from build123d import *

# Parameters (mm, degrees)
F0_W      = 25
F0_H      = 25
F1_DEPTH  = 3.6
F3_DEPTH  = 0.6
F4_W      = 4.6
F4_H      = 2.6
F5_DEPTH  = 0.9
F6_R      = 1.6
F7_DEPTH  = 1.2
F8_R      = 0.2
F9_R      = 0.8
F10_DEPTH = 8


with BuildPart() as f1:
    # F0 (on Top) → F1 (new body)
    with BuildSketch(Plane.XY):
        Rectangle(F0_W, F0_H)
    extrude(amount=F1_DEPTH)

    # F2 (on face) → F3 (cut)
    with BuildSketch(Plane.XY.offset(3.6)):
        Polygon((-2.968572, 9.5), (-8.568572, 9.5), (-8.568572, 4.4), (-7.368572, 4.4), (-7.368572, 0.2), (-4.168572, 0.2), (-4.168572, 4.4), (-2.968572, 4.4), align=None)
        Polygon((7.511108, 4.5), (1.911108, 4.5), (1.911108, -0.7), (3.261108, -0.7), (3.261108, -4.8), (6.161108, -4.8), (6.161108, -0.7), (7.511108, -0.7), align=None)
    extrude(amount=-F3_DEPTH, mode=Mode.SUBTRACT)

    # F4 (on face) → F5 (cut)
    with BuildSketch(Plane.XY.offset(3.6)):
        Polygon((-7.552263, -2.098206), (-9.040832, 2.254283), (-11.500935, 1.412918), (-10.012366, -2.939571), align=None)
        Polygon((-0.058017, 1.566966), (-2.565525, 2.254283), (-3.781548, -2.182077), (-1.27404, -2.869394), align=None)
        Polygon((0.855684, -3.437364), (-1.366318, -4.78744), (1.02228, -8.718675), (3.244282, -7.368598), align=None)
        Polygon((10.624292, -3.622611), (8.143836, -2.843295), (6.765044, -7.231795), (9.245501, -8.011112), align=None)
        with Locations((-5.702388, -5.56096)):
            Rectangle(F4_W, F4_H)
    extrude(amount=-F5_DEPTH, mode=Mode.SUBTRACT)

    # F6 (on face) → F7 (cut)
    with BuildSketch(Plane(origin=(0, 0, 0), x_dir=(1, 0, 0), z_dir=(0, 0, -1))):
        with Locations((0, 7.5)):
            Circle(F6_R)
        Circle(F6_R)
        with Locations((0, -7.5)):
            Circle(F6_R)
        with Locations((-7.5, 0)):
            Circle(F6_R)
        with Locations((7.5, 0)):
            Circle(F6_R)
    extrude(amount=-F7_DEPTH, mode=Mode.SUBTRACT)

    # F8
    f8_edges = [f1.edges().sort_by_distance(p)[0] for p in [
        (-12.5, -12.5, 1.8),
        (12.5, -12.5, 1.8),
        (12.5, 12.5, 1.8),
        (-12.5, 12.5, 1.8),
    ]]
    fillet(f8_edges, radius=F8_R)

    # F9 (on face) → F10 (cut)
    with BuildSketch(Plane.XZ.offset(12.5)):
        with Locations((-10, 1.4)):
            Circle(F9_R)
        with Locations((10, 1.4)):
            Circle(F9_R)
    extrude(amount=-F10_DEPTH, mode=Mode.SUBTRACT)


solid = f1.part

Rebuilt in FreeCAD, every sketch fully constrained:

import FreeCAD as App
import Part
import Sketcher
Q = App.Units.Quantity


def edges_at(feature, points):
    """Names of the edges that pass closest to the given points."""
    edges = feature.Shape.Edges
    near = lambda p: min(range(len(edges)), key=lambda i: edges[i].distToShape(Part.Vertex(*p))[0])
    return sorted({f"Edge{near(p) + 1}" for p in points})


def add_polygon(sketch, points):
    """Adds a closed chain of lines whose ends are joined by coincident constraints."""
    first, n = sketch.GeometryCount, len(points)
    for a, b in zip(points, points[1:] + points[:1]):
        sketch.addGeometry(Part.LineSegment(App.Vector(*a, 0), App.Vector(*b, 0)), False)
    for i in range(n):
        sketch.addConstraint(Sketcher.Constraint("Coincident", first + i, 2, first + (i + 1) % n, 1))

doc = App.newDocument("Part")
body = doc.addObject("PartDesign::Body", "Body")

# Sketch on XY plane
sketch1 = doc.addObject("Sketcher::SketchObject", "Sketch")
body.addObject(sketch1)
sketch1.AttachmentSupport = (doc.XY_Plane, [""])
sketch1.MapMode = "FlatFace"
add_polygon(sketch1, [(-12, 12), (-12, -12), (12, -12), (12, 12)])  # lines 0-3
sketch1.addConstraint([
    Sketcher.Constraint("Vertical", 0),
    Sketcher.Constraint("Horizontal", 1),
    Sketcher.Constraint("Vertical", 2),
    Sketcher.Constraint("Horizontal", 3),
    Sketcher.Constraint("Symmetric", 0, 2, 2, 2, -1, 1),
    Sketcher.Constraint("Equal", 3, 0),
    Sketcher.Constraint("DistanceX", 1, 1, 1, 2, Q("25 mm")),
])
pad1 = doc.addObject("PartDesign::Pad", "Pad")
body.addObject(pad1)
pad1.Profile = sketch1
pad1.Length = 3.6

# Sketch on XY plane
sketch2 = doc.addObject("Sketcher::SketchObject", "Sketch001")
body.addObject(sketch2)
sketch2.AttachmentSupport = (doc.XY_Plane, [""])
sketch2.MapMode = "FlatFace"
sketch2.AttachmentOffset = App.Placement(App.Vector(0, 0, 3.6), App.Rotation())
add_polygon(sketch2, [(-3, 9.5), (-8.6, 9.5), (-8.6, 4.4), (-7.4, 4.4), (-7.4, 0.2), (-4.2, 0.2), (-4.2, 4.4), (-3, 4.4)])  # lines 0-7
add_polygon(sketch2, [(7.5, 4.5), (1.9, 4.5), (1.9, -0.7), (3.3, -0.7), (3.3, -4.8), (6.2, -4.8), (6.2, -0.7), (7.5, -0.7)])  # lines 8-15
sketch2.addConstraint([
    Sketcher.Constraint("Horizontal", 0),
    Sketcher.Constraint("Vertical", 1),
    Sketcher.Constraint("Horizontal", 2),
    Sketcher.Constraint("Vertical", 3),
    Sketcher.Constraint("Horizontal", 4),
    Sketcher.Constraint("Vertical", 5),
    Sketcher.Constraint("Horizontal", 6),
    Sketcher.Constraint("Vertical", 7),
    Sketcher.Constraint("Horizontal", 8),
    Sketcher.Constraint("Vertical", 9),
    Sketcher.Constraint("Horizontal", 10),
    Sketcher.Constraint("Vertical", 11),
    Sketcher.Constraint("Horizontal", 12),
    Sketcher.Constraint("Vertical", 13),
    Sketcher.Constraint("Horizontal", 14),
    Sketcher.Constraint("Vertical", 15),
    Sketcher.Constraint("Horizontal", 2, 2, 5, 2),
    Sketcher.Constraint("Horizontal", 10, 2, 13, 2),
    Sketcher.Constraint("Equal", 2, 6),
    Sketcher.Constraint("Equal", 0, 8),
    Sketcher.Constraint("Equal", 10, 14),
    Sketcher.Constraint("DistanceX", 0, 2, 0, 1, Q("5.6 mm")),
    Sketcher.Constraint("DistanceX", 2, 1, 2, 2, Q("1.2 mm")),
    Sketcher.Constraint("DistanceX", 12, 1, 12, 2, Q("2.9 mm")),
    Sketcher.Constraint("DistanceY", 1, 2, 1, 1, Q("5.1 mm")),
    Sketcher.Constraint("DistanceY", 3, 2, 3, 1, Q("4.2 mm")),
    Sketcher.Constraint("DistanceY", 9, 2, 9, 1, Q("5.2 mm")),
    Sketcher.Constraint("DistanceY", 11, 2, 11, 1, Q("4.1 mm")),
    Sketcher.Constraint("DistanceY", 8, 2, 7, 2, Q("5 mm")),
    Sketcher.Constraint("DistanceY", -1, 1, 0, 2, Q("9.5 mm")),
    Sketcher.Constraint("DistanceX", 6, 2, -1, 1, Q("2.968572 mm")),
    Sketcher.Constraint("DistanceX", -1, 1, 10, 2, Q("3.261108 mm")),
])
pocket1 = doc.addObject("PartDesign::Pocket", "Pocket")
body.addObject(pocket1)
pocket1.Profile = sketch2
pocket1.Length = 0.6

# Sketch on XY plane
sketch3 = doc.addObject("Sketcher::SketchObject", "Sketch002")
body.addObject(sketch3)
sketch3.AttachmentSupport = (doc.XY_Plane, [""])
sketch3.MapMode = "FlatFace"
sketch3.AttachmentOffset = App.Placement(App.Vector(0, 0, 3.6), App.Rotation())
add_polygon(sketch3, [(-7.6, -2.1), (-9, 2.3), (-11.5, 1.4), (-10, -2.9)])  # lines 0-3
add_polygon(sketch3, [(-0.1, 1.6), (-2.6, 2.3), (-3.8, -2.2), (-1.3, -2.9)])  # lines 4-7
add_polygon(sketch3, [(0.9, -3.4), (-1.4, -4.8), (1, -8.7), (3.2, -7.4)])  # lines 8-11
add_polygon(sketch3, [(10.6, -3.6), (8.1, -2.8), (6.8, -7.2), (9.2, -8)])  # lines 12-15
add_polygon(sketch3, [(-8, -4.3), (-8, -6.9), (-3.4, -6.9), (-3.4, -4.3)])  # lines 16-19
sketch3.addConstraint([
    Sketcher.Constraint("Vertical", 16),
    Sketcher.Constraint("Horizontal", 17),
    Sketcher.Constraint("Vertical", 18),
    Sketcher.Constraint("Horizontal", 19),
    Sketcher.Constraint("Perpendicular", 0, 1),
    Sketcher.Constraint("Perpendicular", 1, 2),
    Sketcher.Constraint("Perpendicular", 2, 3),
    Sketcher.Constraint("Perpendicular", 4, 5),
    Sketcher.Constraint("Perpendicular", 5, 6),
    Sketcher.Constraint("Perpendicular", 6, 7),
    Sketcher.Constraint("Perpendicular", 8, 9),
    Sketcher.Constraint("Perpendicular", 9, 10),
    Sketcher.Constraint("Perpendicular", 10, 11),
    Sketcher.Constraint("Perpendicular", 12, 13),
    Sketcher.Constraint("Perpendicular", 13, 14),
    Sketcher.Constraint("Perpendicular", 14, 15),
    Sketcher.Constraint("Horizontal", 0, 2, 4, 2),
    Sketcher.Constraint("Equal", 3, 4),
    Sketcher.Constraint("Equal", 2, 5),
    Sketcher.Constraint("Equal", 6, 8),
    Sketcher.Constraint("Equal", 7, 9),
    Sketcher.Constraint("Equal", 10, 12),
    Sketcher.Constraint("Equal", 11, 13),
    Sketcher.Constraint("DistanceX", 17, 1, 17, 2, Q("4.6 mm")),
    Sketcher.Constraint("DistanceY", 16, 2, 16, 1, Q("2.6 mm")),
    Sketcher.Constraint("Distance", 0, Q("4.6 mm")),
    Sketcher.Constraint("Distance", 1, Q("2.6 mm")),
    Sketcher.Constraint("DistanceX", 9, 2, 10, 2, Q("2.222002 mm")),
    Sketcher.Constraint("DistanceY", 10, 2, -1, 1, Q("7.368598 mm")),
    Sketcher.Constraint("DistanceX", -1, 1, 14, 2, Q("9.245501 mm")),
    Sketcher.Constraint("DistanceX", 8, 2, 7, 2, Q("1.308301 mm")),
    Sketcher.Constraint("DistanceY", 6, 2, 12, 2, Q("0.026099 mm")),
    Sketcher.Constraint("DistanceY", 13, 2, 12, 2, Q("4.3885 mm")),
    Sketcher.Constraint("DistanceY", 2, 2, -1, 1, Q("2.939571 mm")),
    Sketcher.Constraint("DistanceX", 6, 2, -1, 1, Q("1.27404 mm")),
    Sketcher.Constraint("DistanceX", -1, 1, 9, 2, Q("1.02228 mm")),
    Sketcher.Constraint("DistanceY", 15, 2, -1, 1, Q("3.622611 mm")),
    Sketcher.Constraint("DistanceY", 16, 2, -1, 1, Q("6.86096 mm")),
    Sketcher.Constraint("DistanceX", 17, 2, -1, 1, Q("3.402388 mm")),
    Sketcher.Constraint("DistanceX", 1, 2, 4, 2, Q("8.93541 mm")),
])
pocket2 = doc.addObject("PartDesign::Pocket", "Pocket001")
body.addObject(pocket2)
pocket2.Profile = sketch3
pocket2.Length = 0.9

# Sketch on XY plane
sketch4 = doc.addObject("Sketcher::SketchObject", "Sketch003")
body.addObject(sketch4)
sketch4.AttachmentSupport = (doc.XY_Plane, [""])
sketch4.MapMode = "FlatFace"
sketch4.addGeometry([
    Part.Circle(App.Vector(0, -7.5, 0), App.Vector(0, 0, 1), 1.6),  # 0
    Part.Circle(App.Vector(0, 0, 0), App.Vector(0, 0, 1), 1.6),  # 1
    Part.Circle(App.Vector(0, 7.5, 0), App.Vector(0, 0, 1), 1.6),  # 2
    Part.Circle(App.Vector(-7.5, 0, 0), App.Vector(0, 0, 1), 1.6),  # 3
    Part.Circle(App.Vector(7.5, 0, 0), App.Vector(0, 0, 1), 1.6),  # 4
], False)
sketch4.addConstraint([
    Sketcher.Constraint("Coincident", 1, 3, -1, 1),
    Sketcher.Constraint("Equal", 0, 1),
    Sketcher.Constraint("Equal", 1, 2),
    Sketcher.Constraint("Equal", 2, 3),
    Sketcher.Constraint("Equal", 3, 4),
    Sketcher.Constraint("Symmetric", 0, 3, 2, 3, -1, 1),
    Sketcher.Constraint("Symmetric", 3, 3, 4, 3, -1, 1),
    Sketcher.Constraint("PointOnObject", 0, 3, -2),
    Sketcher.Constraint("PointOnObject", 3, 3, -1),
    Sketcher.Constraint("Diameter", 0, Q("3.2 mm")),
    Sketcher.Constraint("DistanceY", 0, 3, 2, 3, Q("15 mm")),
    Sketcher.Constraint("DistanceX", 3, 3, 4, 3, Q("15 mm")),
])
pocket3 = doc.addObject("PartDesign::Pocket", "Pocket002")
body.addObject(pocket3)
pocket3.Profile = sketch4
pocket3.Length = 1.2
pocket3.Reversed = True
doc.recompute()

fillet = doc.addObject("PartDesign::Fillet", "Fillet")
body.addObject(fillet)
fillet.Base = (pocket3, edges_at(pocket3, [
    (-12.5, -12.5, 1.8),
    (12.5, -12.5, 1.8),
    (12.5, 12.5, 1.8),
    (-12.5, 12.5, 1.8),
]))
fillet.Radius = 0.2

# Sketch on XZ plane
sketch5 = doc.addObject("Sketcher::SketchObject", "Sketch004")
body.addObject(sketch5)
sketch5.AttachmentSupport = (doc.XZ_Plane, [""])
sketch5.MapMode = "FlatFace"
sketch5.AttachmentOffset = App.Placement(App.Vector(0, 0, 12.5), App.Rotation())
sketch5.addGeometry([
    Part.Circle(App.Vector(-10, 1.4, 0), App.Vector(0, 0, 1), 0.8),
    Part.Circle(App.Vector(10, 1.4, 0), App.Vector(0, 0, 1), 0.8),
], False)
sketch5.addConstraint([
    Sketcher.Constraint("Equal", 0, 1),
    Sketcher.Constraint("Symmetric", 0, 3, 1, 3, -2),
    Sketcher.Constraint("Diameter", 0, Q("1.6 mm")),
    Sketcher.Constraint("DistanceX", 0, 3, -1, 1, Q("10 mm")),
    Sketcher.Constraint("DistanceY", -1, 1, 0, 3, Q("1.4 mm")),
])
pocket4 = doc.addObject("PartDesign::Pocket", "Pocket003")
body.addObject(pocket4)
pocket4.Profile = sketch5
pocket4.Length = 8

doc.recompute()
